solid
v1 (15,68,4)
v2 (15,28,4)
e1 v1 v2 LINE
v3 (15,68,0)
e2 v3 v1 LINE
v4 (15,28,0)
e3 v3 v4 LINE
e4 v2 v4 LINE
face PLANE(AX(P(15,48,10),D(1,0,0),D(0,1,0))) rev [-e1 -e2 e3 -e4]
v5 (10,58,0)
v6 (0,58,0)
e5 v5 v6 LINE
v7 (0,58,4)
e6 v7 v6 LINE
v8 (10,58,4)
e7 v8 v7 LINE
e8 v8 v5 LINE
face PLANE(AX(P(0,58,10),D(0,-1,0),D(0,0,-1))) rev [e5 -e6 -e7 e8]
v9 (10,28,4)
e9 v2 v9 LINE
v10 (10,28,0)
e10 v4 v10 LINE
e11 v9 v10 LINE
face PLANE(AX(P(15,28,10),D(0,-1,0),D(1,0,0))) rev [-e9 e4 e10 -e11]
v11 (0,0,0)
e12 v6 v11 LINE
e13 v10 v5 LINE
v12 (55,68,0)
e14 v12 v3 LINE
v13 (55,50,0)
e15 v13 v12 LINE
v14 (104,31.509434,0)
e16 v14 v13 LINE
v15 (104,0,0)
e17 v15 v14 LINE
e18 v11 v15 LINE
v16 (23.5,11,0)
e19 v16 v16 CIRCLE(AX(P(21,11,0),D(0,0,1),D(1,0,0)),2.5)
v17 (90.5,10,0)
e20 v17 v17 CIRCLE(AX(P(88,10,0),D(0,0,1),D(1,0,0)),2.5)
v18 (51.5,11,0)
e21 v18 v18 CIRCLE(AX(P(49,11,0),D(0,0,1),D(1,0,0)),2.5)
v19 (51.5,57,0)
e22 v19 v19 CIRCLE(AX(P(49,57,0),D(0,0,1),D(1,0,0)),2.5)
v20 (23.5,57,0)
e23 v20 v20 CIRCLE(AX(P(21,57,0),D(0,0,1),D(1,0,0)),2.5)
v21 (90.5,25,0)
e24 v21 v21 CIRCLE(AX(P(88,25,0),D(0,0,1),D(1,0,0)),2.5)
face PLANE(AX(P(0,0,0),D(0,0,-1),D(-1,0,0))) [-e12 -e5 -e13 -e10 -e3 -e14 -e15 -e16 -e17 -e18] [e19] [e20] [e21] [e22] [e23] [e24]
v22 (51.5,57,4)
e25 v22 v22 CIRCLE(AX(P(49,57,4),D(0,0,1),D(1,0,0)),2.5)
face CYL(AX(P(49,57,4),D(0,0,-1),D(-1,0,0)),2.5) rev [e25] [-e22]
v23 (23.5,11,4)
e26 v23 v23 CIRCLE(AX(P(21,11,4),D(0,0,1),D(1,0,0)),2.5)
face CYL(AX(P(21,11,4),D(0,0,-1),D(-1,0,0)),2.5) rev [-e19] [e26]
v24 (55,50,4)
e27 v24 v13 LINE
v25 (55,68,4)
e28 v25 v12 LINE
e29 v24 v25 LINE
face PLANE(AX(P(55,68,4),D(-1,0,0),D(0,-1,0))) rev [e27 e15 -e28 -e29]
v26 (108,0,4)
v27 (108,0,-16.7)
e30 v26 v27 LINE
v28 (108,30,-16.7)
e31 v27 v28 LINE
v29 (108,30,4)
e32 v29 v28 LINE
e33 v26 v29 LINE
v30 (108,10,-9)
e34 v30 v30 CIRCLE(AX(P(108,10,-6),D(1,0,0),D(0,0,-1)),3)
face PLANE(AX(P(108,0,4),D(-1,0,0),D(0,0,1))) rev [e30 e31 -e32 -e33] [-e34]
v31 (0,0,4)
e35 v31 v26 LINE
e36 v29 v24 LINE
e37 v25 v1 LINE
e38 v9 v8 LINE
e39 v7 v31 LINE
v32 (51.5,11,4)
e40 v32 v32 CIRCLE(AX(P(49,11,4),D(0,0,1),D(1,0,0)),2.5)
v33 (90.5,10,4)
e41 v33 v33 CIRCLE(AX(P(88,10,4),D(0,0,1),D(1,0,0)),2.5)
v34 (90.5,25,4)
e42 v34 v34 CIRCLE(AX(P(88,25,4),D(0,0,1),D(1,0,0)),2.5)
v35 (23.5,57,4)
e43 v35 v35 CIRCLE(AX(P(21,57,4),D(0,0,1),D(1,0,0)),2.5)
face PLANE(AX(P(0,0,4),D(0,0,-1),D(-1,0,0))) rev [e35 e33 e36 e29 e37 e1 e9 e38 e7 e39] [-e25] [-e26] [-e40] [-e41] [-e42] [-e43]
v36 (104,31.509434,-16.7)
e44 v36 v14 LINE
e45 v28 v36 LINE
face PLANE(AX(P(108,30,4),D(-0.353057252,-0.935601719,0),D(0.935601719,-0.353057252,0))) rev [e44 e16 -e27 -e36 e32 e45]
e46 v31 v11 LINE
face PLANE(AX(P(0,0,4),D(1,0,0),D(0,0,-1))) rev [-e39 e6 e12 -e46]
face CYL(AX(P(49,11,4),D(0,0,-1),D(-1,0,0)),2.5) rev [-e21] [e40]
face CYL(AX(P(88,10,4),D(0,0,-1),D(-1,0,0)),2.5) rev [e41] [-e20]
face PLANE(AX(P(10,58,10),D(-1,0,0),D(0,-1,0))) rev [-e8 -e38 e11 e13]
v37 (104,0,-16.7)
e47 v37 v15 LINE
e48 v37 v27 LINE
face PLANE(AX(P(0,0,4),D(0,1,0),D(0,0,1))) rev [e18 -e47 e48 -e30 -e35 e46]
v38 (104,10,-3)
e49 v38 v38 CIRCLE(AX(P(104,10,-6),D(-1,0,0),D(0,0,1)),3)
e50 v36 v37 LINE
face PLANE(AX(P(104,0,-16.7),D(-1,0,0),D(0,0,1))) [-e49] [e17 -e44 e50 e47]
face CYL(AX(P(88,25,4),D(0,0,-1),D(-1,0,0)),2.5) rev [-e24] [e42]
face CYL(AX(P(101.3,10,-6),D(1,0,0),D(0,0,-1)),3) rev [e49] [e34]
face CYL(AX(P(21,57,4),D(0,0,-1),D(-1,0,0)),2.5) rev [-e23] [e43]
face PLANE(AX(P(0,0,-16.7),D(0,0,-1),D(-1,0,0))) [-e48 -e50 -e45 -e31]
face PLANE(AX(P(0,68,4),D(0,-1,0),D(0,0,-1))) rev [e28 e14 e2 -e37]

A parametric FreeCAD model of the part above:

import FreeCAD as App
import Part
import Sketcher
from FreeCAD import Vector
Q = App.Units.Quantity

doc = App.newDocument("Part")
params = doc.addObject("Spreadsheet::Sheet", "Params")
for row, (alias, value) in enumerate([
    ("sketch1_diameter", "5 mm"),
    ("sketch1_width", "108 mm"),
    ("sketch1_width2", "55 mm"),
    ("sketch1_height", "30 mm"),
    ("sketch1_height2", "18 mm"),
    ("pad1_length", "4 mm"),
    ("sketch2_width", "4 mm"),
    ("sketch2_height", "30 mm"),
    ("pad2_length", "20.7 mm"),
    ("sketch3_diameter", "6 mm"),
    ("pocket1_length", "6.7 mm"),
    ("sketch4_width", "15 mm"),
    ("sketch4_width2", "5 mm"),
    ("sketch4_height", "40 mm"),
    ("pocket2_length", "10 mm"),
], start=1):
    params.set(f"A{row}", alias)
    params.set(f"B{row}", "=" + value)
    params.setAlias(f"B{row}", alias)

body = doc.addObject("PartDesign::Body", "Body")

# Sketch on XY plane
sketch1 = body.newObject("Sketcher::SketchObject", "Sketch")
sketch1.AttachmentSupport = (doc.getObject("XY_Plane"), [""])
sketch1.MapMode = "FlatFace"
sketch1.addGeometry(Part.LineSegment(Vector(0, 0, 0), Vector(108, 0, 0)), False)
sketch1.addGeometry(Part.LineSegment(Vector(108, 0, 0), Vector(108, 30, 0)), False)
sketch1.addGeometry(Part.LineSegment(Vector(108, 30, 0), Vector(55, 50, 0)), False)
sketch1.addGeometry(Part.LineSegment(Vector(55, 50, 0), Vector(55, 68, 0)), False)
sketch1.addGeometry(Part.LineSegment(Vector(55, 68, 0), Vector(0, 68, 0)), False)
sketch1.addGeometry(Part.LineSegment(Vector(0, 68, 0), Vector(0, 0, 0)), False)
sketch1.addGeometry(Part.Circle(Vector(21, 11, 0), Vector(0, 0, 1), 2.5), False)
sketch1.addGeometry(Part.Circle(Vector(49, 11, 0), Vector(0, 0, 1), 2.5), False)
sketch1.addGeometry(Part.Circle(Vector(88, 10, 0), Vector(0, 0, 1), 2.5), False)
sketch1.addGeometry(Part.Circle(Vector(88, 25, 0), Vector(0, 0, 1), 2.5), False)
sketch1.addGeometry(Part.Circle(Vector(21, 57, 0), Vector(0, 0, 1), 2.5), False)
sketch1.addGeometry(Part.Circle(Vector(49, 57, 0), Vector(0, 0, 1), 2.5), False)
sketch1.addConstraint(Sketcher.Constraint("Coincident", 0, 2, 1, 1))
sketch1.addConstraint(Sketcher.Constraint("Coincident", 1, 2, 2, 1))
sketch1.addConstraint(Sketcher.Constraint("Coincident", 2, 2, 3, 1))
sketch1.addConstraint(Sketcher.Constraint("Coincident", 3, 2, 4, 1))
sketch1.addConstraint(Sketcher.Constraint("Coincident", 4, 2, 5, 1))
sketch1.addConstraint(Sketcher.Constraint("Coincident", 5, 2, 0, 1))
sketch1.addConstraint(Sketcher.Constraint("Horizontal", 0))
sketch1.addConstraint(Sketcher.Constraint("Vertical", 1))
sketch1.addConstraint(Sketcher.Constraint("Vertical", 3))
sketch1.addConstraint(Sketcher.Constraint("Horizontal", 4))
sketch1.addConstraint(Sketcher.Constraint("Vertical", 5))
sketch1.addConstraint(Sketcher.Constraint("Coincident", 5, 2, -1, 1))
sketch1.addConstraint(Sketcher.Constraint("Equal", 6, 7))
sketch1.addConstraint(Sketcher.Constraint("Equal", 7, 8))
sketch1.addConstraint(Sketcher.Constraint("Equal", 8, 9))
sketch1.addConstraint(Sketcher.Constraint("Equal", 9, 10))
sketch1.addConstraint(Sketcher.Constraint("Equal", 10, 11))
sketch1.addConstraint(Sketcher.Constraint("Horizontal", 6, 3, 7, 3))
sketch1.addConstraint(Sketcher.Constraint("Horizontal", 10, 3, 11, 3))
sketch1.addConstraint(Sketcher.Constraint("Vertical", 8, 3, 9, 3))
sketch1.addConstraint(Sketcher.Constraint("Vertical", 6, 3, 10, 3))
sketch1.addConstraint(Sketcher.Constraint("Vertical", 7, 3, 11, 3))
sketch1.addConstraint(Sketcher.Constraint("Diameter", 6, Q("5 mm")))
sketch1.addConstraint(Sketcher.Constraint("DistanceX", 0, 1, 0, 2, Q("108 mm")))
sketch1.addConstraint(Sketcher.Constraint("DistanceX", 4, 2, 4, 1, Q("55 mm")))
sketch1.addConstraint(Sketcher.Constraint("DistanceY", 1, 1, 1, 2, Q("30 mm")))
sketch1.addConstraint(Sketcher.Constraint("DistanceY", 3, 1, 3, 2, Q("18 mm")))
sketch1.addConstraint(Sketcher.Constraint("DistanceY", 5, 2, 5, 1, Q("68 mm")))
sketch1.addConstraint(Sketcher.Constraint("DistanceX", -1, 1, 6, 3, Q("21 mm")))
sketch1.addConstraint(Sketcher.Constraint("DistanceY", -1, 1, 6, 3, Q("11 mm")))
sketch1.addConstraint(Sketcher.Constraint("DistanceX", -1, 1, 7, 3, Q("49 mm")))
sketch1.addConstraint(Sketcher.Constraint("DistanceX", -1, 1, 8, 3, Q("88 mm")))
sketch1.addConstraint(Sketcher.Constraint("DistanceY", -1, 1, 8, 3, Q("10 mm")))
sketch1.addConstraint(Sketcher.Constraint("DistanceY", -1, 1, 9, 3, Q("25 mm")))
sketch1.addConstraint(Sketcher.Constraint("DistanceY", -1, 1, 10, 3, Q("57 mm")))
sketch1.setExpression("Constraints[22]", "Params.sketch1_diameter")
sketch1.setExpression("Constraints[23]", "Params.sketch1_width")
sketch1.setExpression("Constraints[24]", "Params.sketch1_width2")
sketch1.setExpression("Constraints[25]", "Params.sketch1_height")
sketch1.setExpression("Constraints[26]", "Params.sketch1_height2")
pad1 = body.newObject("PartDesign::Pad", "Pad")
pad1.Profile = sketch1
pad1.setExpression("Length", "Params.pad1_length")

# Sketch on XY plane
sketch2 = body.newObject("Sketcher::SketchObject", "Sketch001")
sketch2.AttachmentSupport = (doc.getObject("XY_Plane"), [""])
sketch2.MapMode = "FlatFace"
sketch2.AttachmentOffset = App.Placement(Vector(0, 0, 4), App.Rotation())
sketch2.addGeometry(Part.LineSegment(Vector(104, 0, 0), Vector(108, 0, 0)), False)
sketch2.addGeometry(Part.LineSegment(Vector(108, 0, 0), Vector(108, 30, 0)), False)
sketch2.addGeometry(Part.LineSegment(Vector(108, 30, 0), Vector(104, 31.5, 0)), False)
sketch2.addGeometry(Part.LineSegment(Vector(104, 31.5, 0), Vector(104, 0, 0)), False)
sketch2.addConstraint(Sketcher.Constraint("Coincident", 0, 2, 1, 1))
sketch2.addConstraint(Sketcher.Constraint("Coincident", 1, 2, 2, 1))
sketch2.addConstraint(Sketcher.Constraint("Coincident", 2, 2, 3, 1))
sketch2.addConstraint(Sketcher.Constraint("Coincident", 3, 2, 0, 1))
sketch2.addConstraint(Sketcher.Constraint("Horizontal", 0))
sketch2.addConstraint(Sketcher.Constraint("Vertical", 1))
sketch2.addConstraint(Sketcher.Constraint("Vertical", 3))
sketch2.addConstraint(Sketcher.Constraint("PointOnObject", 0, 2, -1))
sketch2.addConstraint(Sketcher.Constraint("DistanceX", 0, 1, 0, 2, Q("4 mm")))
sketch2.addConstraint(Sketcher.Constraint("DistanceY", 1, 1, 1, 2, Q("30 mm")))
sketch2.addConstraint(Sketcher.Constraint("DistanceX", -1, 1, 0, 2, Q("108 mm")))
sketch2.addConstraint(Sketcher.Constraint("DistanceY", 3, 2, 3, 1, Q("31.509434 mm")))
sketch2.setExpression("Constraints[8]", "Params.sketch2_width")
sketch2.setExpression("Constraints[9]", "Params.sketch2_height")
pad2 = body.newObject("PartDesign::Pad", "Pad001")
pad2.Profile = sketch2
pad2.setExpression("Length", "Params.pad2_length")
pad2.Reversed = True

# Sketch on YZ plane
sketch3 = body.newObject("Sketcher::SketchObject", "Sketch002")
sketch3.AttachmentSupport = (doc.getObject("YZ_Plane"), [""])
sketch3.MapMode = "FlatFace"
sketch3.AttachmentOffset = App.Placement(Vector(0, 0, 108), App.Rotation())
sketch3.addGeometry(Part.Circle(Vector(10, -6, 0), Vector(0, 0, 1), 3), False)
sketch3.addConstraint(Sketcher.Constraint("Diameter", 0, Q("6 mm")))
sketch3.addConstraint(Sketcher.Constraint("DistanceX", -1, 1, 0, 3, Q("10 mm")))
sketch3.addConstraint(Sketcher.Constraint("DistanceY", 0, 3, -1, 1, Q("6 mm")))
sketch3.setExpression("Constraints[0]", "Params.sketch3_diameter")
pocket1 = body.newObject("PartDesign::Pocket", "Pocket")
pocket1.Profile = sketch3
pocket1.setExpression("Length", "Params.pocket1_length")

# Sketch on XY plane
sketch4 = body.newObject("Sketcher::SketchObject", "Sketch003")
sketch4.AttachmentSupport = (doc.getObject("XY_Plane"), [""])
sketch4.MapMode = "FlatFace"
sketch4.addGeometry(Part.LineSegment(Vector(0, 68, 0), Vector(15, 68, 0)), False)
sketch4.addGeometry(Part.LineSegment(Vector(15, 68, 0), Vector(15, 28, 0)), False)
sketch4.addGeometry(Part.LineSegment(Vector(15, 28, 0), Vector(10, 28, 0)), False)
sketch4.addGeometry(Part.LineSegment(Vector(10, 28, 0), Vector(10, 58, 0)), False)
sketch4.addGeometry(Part.LineSegment(Vector(10, 58, 0), Vector(0, 58, 0)), False)
sketch4.addGeometry(Part.LineSegment(Vector(0, 58, 0), Vector(0, 68, 0)), False)
sketch4.addConstraint(Sketcher.Constraint("Coincident", 0, 2, 1, 1))
sketch4.addConstraint(Sketcher.Constraint("Coincident", 1, 2, 2, 1))
sketch4.addConstraint(Sketcher.Constraint("Coincident", 2, 2, 3, 1))
sketch4.addConstraint(Sketcher.Constraint("Coincident", 3, 2, 4, 1))
sketch4.addConstraint(Sketcher.Constraint("Coincident", 4, 2, 5, 1))
sketch4.addConstraint(Sketcher.Constraint("Coincident", 5, 2, 0, 1))
sketch4.addConstraint(Sketcher.Constraint("Horizontal", 0))
sketch4.addConstraint(Sketcher.Constraint("Vertical", 1))
sketch4.addConstraint(Sketcher.Constraint("Horizontal", 2))
sketch4.addConstraint(Sketcher.Constraint("Vertical", 3))
sketch4.addConstraint(Sketcher.Constraint("Horizontal", 4))
sketch4.addConstraint(Sketcher.Constraint("Vertical", 5))
sketch4.addConstraint(Sketcher.Constraint("PointOnObject", 4, 2, -2))
sketch4.addConstraint(Sketcher.Constraint("Equal", 4, 5))
sketch4.addConstraint(Sketcher.Constraint("DistanceX", 0, 1, 0, 2, Q("15 mm")))
sketch4.addConstraint(Sketcher.Constraint("DistanceX", 2, 2, 2, 1, Q("5 mm")))
sketch4.addConstraint(Sketcher.Constraint("DistanceY", 1, 2, 1, 1, Q("40 mm")))
sketch4.addConstraint(Sketcher.Constraint("DistanceY", -1, 1, 0, 2, Q("68 mm")))
sketch4.setExpression("Constraints[14]", "Params.sketch4_width")
sketch4.setExpression("Constraints[15]", "Params.sketch4_width2")
sketch4.setExpression("Constraints[16]", "Params.sketch4_height")
pocket2 = body.newObject("PartDesign::Pocket", "Pocket001")
pocket2.Profile = sketch4
pocket2.setExpression("Length", "Params.pocket2_length")
pocket2.Reversed = True

doc.recompute()
